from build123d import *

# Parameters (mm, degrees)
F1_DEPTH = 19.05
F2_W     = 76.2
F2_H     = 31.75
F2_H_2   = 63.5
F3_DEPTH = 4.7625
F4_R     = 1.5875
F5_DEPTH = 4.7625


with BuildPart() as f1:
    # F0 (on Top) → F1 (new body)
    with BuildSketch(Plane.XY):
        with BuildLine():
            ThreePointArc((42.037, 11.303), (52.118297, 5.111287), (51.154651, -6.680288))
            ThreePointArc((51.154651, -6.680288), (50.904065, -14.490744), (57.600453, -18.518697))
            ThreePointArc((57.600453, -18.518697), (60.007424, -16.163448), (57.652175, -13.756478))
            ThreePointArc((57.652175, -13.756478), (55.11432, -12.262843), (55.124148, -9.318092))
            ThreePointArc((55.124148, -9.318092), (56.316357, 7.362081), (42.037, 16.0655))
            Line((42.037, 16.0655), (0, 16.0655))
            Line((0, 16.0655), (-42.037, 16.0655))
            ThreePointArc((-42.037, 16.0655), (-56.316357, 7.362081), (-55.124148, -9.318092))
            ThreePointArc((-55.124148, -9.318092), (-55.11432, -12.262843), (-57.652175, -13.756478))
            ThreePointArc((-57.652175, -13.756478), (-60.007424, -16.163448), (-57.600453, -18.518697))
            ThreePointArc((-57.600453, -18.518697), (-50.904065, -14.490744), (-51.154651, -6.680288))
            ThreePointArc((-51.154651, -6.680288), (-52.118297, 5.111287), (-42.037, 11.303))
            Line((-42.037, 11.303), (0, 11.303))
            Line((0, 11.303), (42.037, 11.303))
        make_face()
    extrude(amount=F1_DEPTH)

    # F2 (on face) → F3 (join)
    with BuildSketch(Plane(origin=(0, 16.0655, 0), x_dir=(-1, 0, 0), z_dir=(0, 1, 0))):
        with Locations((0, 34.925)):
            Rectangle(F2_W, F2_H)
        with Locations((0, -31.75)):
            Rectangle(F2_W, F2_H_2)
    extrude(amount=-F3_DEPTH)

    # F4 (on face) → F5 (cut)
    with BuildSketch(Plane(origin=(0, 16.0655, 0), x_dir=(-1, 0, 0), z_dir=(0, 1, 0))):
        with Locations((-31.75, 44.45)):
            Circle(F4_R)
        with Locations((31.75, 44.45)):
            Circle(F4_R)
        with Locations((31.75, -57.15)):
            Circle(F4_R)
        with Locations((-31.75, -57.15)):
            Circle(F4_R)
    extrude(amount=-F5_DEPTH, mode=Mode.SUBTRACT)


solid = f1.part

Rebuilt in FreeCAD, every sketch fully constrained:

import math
import FreeCAD as App
import Part
import Sketcher

V = App.Vector
Q = App.Units.Quantity

doc = App.newDocument("Part")
body = doc.addObject("PartDesign::Body", "Body")

sketch1 = doc.addObject("Sketcher::SketchObject", "Sketch")
body.addObject(sketch1)
sketch1.AttachmentSupport = (doc.XY_Plane, [""])
sketch1.MapMode = "FlatFace"
sketch1.addGeometry(Part.ArcOfCircle(Part.Circle(V(42, 0, 0), V(0, 0, 1), 11.3), math.radians(-36), math.radians(90)), False)
sketch1.addGeometry(Part.ArcOfCircle(Part.Circle(V(57.7, -10.8, 0), V(0, 0, 1), 7.7), math.radians(148), math.radians(269)), False)
sketch1.addGeometry(Part.ArcOfCircle(Part.Circle(V(57.6, -16.1, 0), V(0, 0, 1), 2.4), math.radians(-91), math.radians(89)), False)
sketch1.addGeometry(Part.ArcOfCircle(Part.Circle(V(57.7, -10.8, 0), V(0, 0, 1), 3), math.radians(150), math.radians(269)), False)
sketch1.addGeometry(Part.ArcOfCircle(Part.Circle(V(42, 0, 0), V(0, 0, 1), 16.1), math.radians(-35), math.radians(90)), False)
sketch1.addGeometry(Part.LineSegment(V(42, 16.1, 0), V(-42, 16.1, 0)), False)
sketch1.addGeometry(Part.ArcOfCircle(Part.Circle(V(-42, 0, 0), V(0, 0, 1), 16.1), math.radians(90), math.radians(215)), False)
sketch1.addGeometry(Part.ArcOfCircle(Part.Circle(V(-57.7, -10.8, 0), V(0, 0, 1), 3), math.radians(-89), math.radians(30)), False)
sketch1.addGeometry(Part.ArcOfCircle(Part.Circle(V(-57.6, -16.1, 0), V(0, 0, 1), 2.4), math.radians(91), math.radians(271)), False)
sketch1.addGeometry(Part.ArcOfCircle(Part.Circle(V(-57.7, -10.8, 0), V(0, 0, 1), 7.7), math.radians(-89), math.radians(32)), False)
sketch1.addGeometry(Part.ArcOfCircle(Part.Circle(V(-42, 0, 0), V(0, 0, 1), 11.3), math.radians(90), math.radians(216)), False)
sketch1.addGeometry(Part.LineSegment(V(-42, 11.3, 0), V(42, 11.3, 0)), False)
sketch1.addConstraint(Sketcher.Constraint("Coincident", 0, 1, 1, 1))
sketch1.addConstraint(Sketcher.Constraint("Tangent", 1, 2, 2, 1))
sketch1.addConstraint(Sketcher.Constraint("Tangent", 2, 2, 3, 2))
sketch1.addConstraint(Sketcher.Constraint("Coincident", 3, 1, 4, 1))
sketch1.addConstraint(Sketcher.Constraint("Tangent", 4, 2, 5, 1))
sketch1.addConstraint(Sketcher.Constraint("Tangent", 5, 2, 6, 1))
sketch1.addConstraint(Sketcher.Constraint("Coincident", 6, 2, 7, 2))
sketch1.addConstraint(Sketcher.Constraint("Tangent", 7, 1, 8, 1))
sketch1.addConstraint(Sketcher.Constraint("Tangent", 8, 2, 9, 1))
sketch1.addConstraint(Sketcher.Constraint("Coincident", 9, 2, 10, 2))
sketch1.addConstraint(Sketcher.Constraint("Tangent", 10, 1, 11, 1))
sketch1.addConstraint(Sketcher.Constraint("Tangent", 11, 2, 0, 2))
sketch1.addConstraint(Sketcher.Constraint("Horizontal", 5))
sketch1.addConstraint(Sketcher.Constraint("Horizontal", 11))
sketch1.addConstraint(Sketcher.Constraint("Coincident", 3, 3, 1, 3))
sketch1.addConstraint(Sketcher.Constraint("Coincident", 4, 3, 0, 3))
sketch1.addConstraint(Sketcher.Constraint("Coincident", 9, 3, 7, 3))
sketch1.addConstraint(Sketcher.Constraint("Coincident", 10, 3, 6, 3))
sketch1.addConstraint(Sketcher.Constraint("Equal", 4, 6))
sketch1.addConstraint(Sketcher.Constraint("Equal", 3, 7))
sketch1.addConstraint(Sketcher.Constraint("Equal", 2, 8))
sketch1.addConstraint(Sketcher.Constraint("Symmetric", 0, 3, 6, 3, -1, 1))
sketch1.addConstraint(Sketcher.Constraint("Symmetric", 1, 3, 7, 3, -2))
sketch1.addConstraint(Sketcher.Constraint("Horizontal", 2, 3, 8, 3))
sketch1.addConstraint(Sketcher.Constraint("Radius", 0, Q("0.445 in")))
sketch1.addConstraint(Sketcher.Constraint("Radius", 2, Q("0.09375 in")))
sketch1.addConstraint(Sketcher.Constraint("DistanceX", 5, 2, 5, 1, Q("3.31 in")))
sketch1.addConstraint(Sketcher.Constraint("Radius", 4, Q("0.6325 in")))
sketch1.addConstraint(Sketcher.Constraint("Radius", 1, Q("7.720123 mm")))
sketch1.addConstraint(Sketcher.Constraint("DistanceX", -1, 1, 3, 3, Q("57.684298 mm")))
sketch1.addConstraint(Sketcher.Constraint("DistanceY", 2, 3, 0, 1, Q("9.4573 mm")))
sketch1.addConstraint(Sketcher.Constraint("DistanceY", 2, 3, 1, 3, Q("5.338558 mm")))
pad1 = doc.addObject("PartDesign::Pad", "Pad")
body.addObject(pad1)
pad1.Profile = sketch1
pad1.Length = Q("0.75 in")

sketch2 = doc.addObject("Sketcher::SketchObject", "Sketch001")
body.addObject(sketch2)
sketch2.AttachmentSupport = (doc.XZ_Plane, [""])
sketch2.MapMode = "FlatFace"
sketch2.AttachmentOffset = App.Placement(V(0, 0, -0.6325 * 25.4), App.Rotation())
sketch2.addGeometry(Part.LineSegment(V(38, 51, 0), V(38, 19, 0)), False)
sketch2.addGeometry(Part.LineSegment(V(38, 19, 0), V(-38, 19, 0)), False)
sketch2.addGeometry(Part.LineSegment(V(-38, 19, 0), V(-38, 51, 0)), False)
sketch2.addGeometry(Part.LineSegment(V(-38, 51, 0), V(38, 51, 0)), False)
sketch2.addGeometry(Part.LineSegment(V(38, 0, 0), V(38, -64, 0)), False)
sketch2.addGeometry(Part.LineSegment(V(38, -64, 0), V(-38, -64, 0)), False)
sketch2.addGeometry(Part.LineSegment(V(-38, -64, 0), V(-38, 0, 0)), False)
sketch2.addGeometry(Part.LineSegment(V(-38, 0, 0), V(38, 0, 0)), False)
sketch2.addConstraint(Sketcher.Constraint("Coincident", 0, 2, 1, 1))
sketch2.addConstraint(Sketcher.Constraint("Coincident", 1, 2, 2, 1))
sketch2.addConstraint(Sketcher.Constraint("Coincident", 2, 2, 3, 1))
sketch2.addConstraint(Sketcher.Constraint("Coincident", 3, 2, 0, 1))
sketch2.addConstraint(Sketcher.Constraint("Coincident", 4, 2, 5, 1))
sketch2.addConstraint(Sketcher.Constraint("Coincident", 5, 2, 6, 1))
sketch2.addConstraint(Sketcher.Constraint("Coincident", 6, 2, 7, 1))
sketch2.addConstraint(Sketcher.Constraint("Coincident", 7, 2, 4, 1))
sketch2.addConstraint(Sketcher.Constraint("Vertical", 0))
sketch2.addConstraint(Sketcher.Constraint("Horizontal", 1))
sketch2.addConstraint(Sketcher.Constraint("Vertical", 2))
sketch2.addConstraint(Sketcher.Constraint("Horizontal", 3))
sketch2.addConstraint(Sketcher.Constraint("Vertical", 4))
sketch2.addConstraint(Sketcher.Constraint("Horizontal", 5))
sketch2.addConstraint(Sketcher.Constraint("Vertical", 6))
sketch2.addConstraint(Sketcher.Constraint("Horizontal", 7))
sketch2.addConstraint(Sketcher.Constraint("Symmetric", 6, 2, 7, 2, -1, 1))
sketch2.addConstraint(Sketcher.Constraint("Vertical", 3, 2, 4, 2))
sketch2.addConstraint(Sketcher.Constraint("Vertical", 2, 2, 5, 2))
sketch2.addConstraint(Sketcher.Constraint("DistanceX", 1, 2, 1, 1, Q("3 in")))
sketch2.addConstraint(Sketcher.Constraint("DistanceY", 4, 2, 4, 1, Q("2.5 in")))
sketch2.addConstraint(Sketcher.Constraint("DistanceY", -1, 1, 2, 2, Q("2 in")))
sketch2.addConstraint(Sketcher.Constraint("DistanceY", 0, 2, 0, 1, Q("1.25 in")))
pad2 = doc.addObject("PartDesign::Pad", "Pad001")
body.addObject(pad2)
pad2.Profile = sketch2
pad2.Length = Q("0.1875 in")

sketch3 = doc.addObject("Sketcher::SketchObject", "Sketch002")
body.addObject(sketch3)
sketch3.AttachmentSupport = (doc.XZ_Plane, [""])
sketch3.MapMode = "FlatFace"
sketch3.AttachmentOffset = App.Placement(V(0, 0, -0.6325 * 25.4), App.Rotation())
sketch3.addGeometry(Part.Circle(V(31.8, 44.5, 0), V(0, 0, 1), 1.6), False)
sketch3.addGeometry(Part.Circle(V(-31.8, 44.5, 0), V(0, 0, 1), 1.6), False)
sketch3.addGeometry(Part.Circle(V(-31.8, -57.1, 0), V(0, 0, 1), 1.6), False)
sketch3.addGeometry(Part.Circle(V(31.8, -57.1, 0), V(0, 0, 1), 1.6), False)
sketch3.addConstraint(Sketcher.Constraint("Equal", 0, 1))
sketch3.addConstraint(Sketcher.Constraint("Equal", 1, 2))
sketch3.addConstraint(Sketcher.Constraint("Equal", 2, 3))
sketch3.addConstraint(Sketcher.Constraint("Symmetric", 0, 3, 1, 3, -2))
sketch3.addConstraint(Sketcher.Constraint("Symmetric", 2, 3, 3, 3, -2))
sketch3.addConstraint(Sketcher.Constraint("Vertical", 1, 3, 2, 3))
sketch3.addConstraint(Sketcher.Constraint("Diameter", 0, Q("0.125 in")))
sketch3.addConstraint(Sketcher.Constraint("DistanceY", 2, 3, 1, 3, Q("4 in")))
sketch3.addConstraint(Sketcher.Constraint("DistanceX", 1, 3, 0, 3, Q("2.5 in")))
sketch3.addConstraint(Sketcher.Constraint("DistanceY", -1, 1, 0, 3, Q("1.75 in")))
pocket1 = doc.addObject("PartDesign::Pocket", "Pocket")
body.addObject(pocket1)
pocket1.Profile = sketch3
pocket1.Length = Q("0.1875 in")
pocket1.Reversed = True

doc.recompute()
